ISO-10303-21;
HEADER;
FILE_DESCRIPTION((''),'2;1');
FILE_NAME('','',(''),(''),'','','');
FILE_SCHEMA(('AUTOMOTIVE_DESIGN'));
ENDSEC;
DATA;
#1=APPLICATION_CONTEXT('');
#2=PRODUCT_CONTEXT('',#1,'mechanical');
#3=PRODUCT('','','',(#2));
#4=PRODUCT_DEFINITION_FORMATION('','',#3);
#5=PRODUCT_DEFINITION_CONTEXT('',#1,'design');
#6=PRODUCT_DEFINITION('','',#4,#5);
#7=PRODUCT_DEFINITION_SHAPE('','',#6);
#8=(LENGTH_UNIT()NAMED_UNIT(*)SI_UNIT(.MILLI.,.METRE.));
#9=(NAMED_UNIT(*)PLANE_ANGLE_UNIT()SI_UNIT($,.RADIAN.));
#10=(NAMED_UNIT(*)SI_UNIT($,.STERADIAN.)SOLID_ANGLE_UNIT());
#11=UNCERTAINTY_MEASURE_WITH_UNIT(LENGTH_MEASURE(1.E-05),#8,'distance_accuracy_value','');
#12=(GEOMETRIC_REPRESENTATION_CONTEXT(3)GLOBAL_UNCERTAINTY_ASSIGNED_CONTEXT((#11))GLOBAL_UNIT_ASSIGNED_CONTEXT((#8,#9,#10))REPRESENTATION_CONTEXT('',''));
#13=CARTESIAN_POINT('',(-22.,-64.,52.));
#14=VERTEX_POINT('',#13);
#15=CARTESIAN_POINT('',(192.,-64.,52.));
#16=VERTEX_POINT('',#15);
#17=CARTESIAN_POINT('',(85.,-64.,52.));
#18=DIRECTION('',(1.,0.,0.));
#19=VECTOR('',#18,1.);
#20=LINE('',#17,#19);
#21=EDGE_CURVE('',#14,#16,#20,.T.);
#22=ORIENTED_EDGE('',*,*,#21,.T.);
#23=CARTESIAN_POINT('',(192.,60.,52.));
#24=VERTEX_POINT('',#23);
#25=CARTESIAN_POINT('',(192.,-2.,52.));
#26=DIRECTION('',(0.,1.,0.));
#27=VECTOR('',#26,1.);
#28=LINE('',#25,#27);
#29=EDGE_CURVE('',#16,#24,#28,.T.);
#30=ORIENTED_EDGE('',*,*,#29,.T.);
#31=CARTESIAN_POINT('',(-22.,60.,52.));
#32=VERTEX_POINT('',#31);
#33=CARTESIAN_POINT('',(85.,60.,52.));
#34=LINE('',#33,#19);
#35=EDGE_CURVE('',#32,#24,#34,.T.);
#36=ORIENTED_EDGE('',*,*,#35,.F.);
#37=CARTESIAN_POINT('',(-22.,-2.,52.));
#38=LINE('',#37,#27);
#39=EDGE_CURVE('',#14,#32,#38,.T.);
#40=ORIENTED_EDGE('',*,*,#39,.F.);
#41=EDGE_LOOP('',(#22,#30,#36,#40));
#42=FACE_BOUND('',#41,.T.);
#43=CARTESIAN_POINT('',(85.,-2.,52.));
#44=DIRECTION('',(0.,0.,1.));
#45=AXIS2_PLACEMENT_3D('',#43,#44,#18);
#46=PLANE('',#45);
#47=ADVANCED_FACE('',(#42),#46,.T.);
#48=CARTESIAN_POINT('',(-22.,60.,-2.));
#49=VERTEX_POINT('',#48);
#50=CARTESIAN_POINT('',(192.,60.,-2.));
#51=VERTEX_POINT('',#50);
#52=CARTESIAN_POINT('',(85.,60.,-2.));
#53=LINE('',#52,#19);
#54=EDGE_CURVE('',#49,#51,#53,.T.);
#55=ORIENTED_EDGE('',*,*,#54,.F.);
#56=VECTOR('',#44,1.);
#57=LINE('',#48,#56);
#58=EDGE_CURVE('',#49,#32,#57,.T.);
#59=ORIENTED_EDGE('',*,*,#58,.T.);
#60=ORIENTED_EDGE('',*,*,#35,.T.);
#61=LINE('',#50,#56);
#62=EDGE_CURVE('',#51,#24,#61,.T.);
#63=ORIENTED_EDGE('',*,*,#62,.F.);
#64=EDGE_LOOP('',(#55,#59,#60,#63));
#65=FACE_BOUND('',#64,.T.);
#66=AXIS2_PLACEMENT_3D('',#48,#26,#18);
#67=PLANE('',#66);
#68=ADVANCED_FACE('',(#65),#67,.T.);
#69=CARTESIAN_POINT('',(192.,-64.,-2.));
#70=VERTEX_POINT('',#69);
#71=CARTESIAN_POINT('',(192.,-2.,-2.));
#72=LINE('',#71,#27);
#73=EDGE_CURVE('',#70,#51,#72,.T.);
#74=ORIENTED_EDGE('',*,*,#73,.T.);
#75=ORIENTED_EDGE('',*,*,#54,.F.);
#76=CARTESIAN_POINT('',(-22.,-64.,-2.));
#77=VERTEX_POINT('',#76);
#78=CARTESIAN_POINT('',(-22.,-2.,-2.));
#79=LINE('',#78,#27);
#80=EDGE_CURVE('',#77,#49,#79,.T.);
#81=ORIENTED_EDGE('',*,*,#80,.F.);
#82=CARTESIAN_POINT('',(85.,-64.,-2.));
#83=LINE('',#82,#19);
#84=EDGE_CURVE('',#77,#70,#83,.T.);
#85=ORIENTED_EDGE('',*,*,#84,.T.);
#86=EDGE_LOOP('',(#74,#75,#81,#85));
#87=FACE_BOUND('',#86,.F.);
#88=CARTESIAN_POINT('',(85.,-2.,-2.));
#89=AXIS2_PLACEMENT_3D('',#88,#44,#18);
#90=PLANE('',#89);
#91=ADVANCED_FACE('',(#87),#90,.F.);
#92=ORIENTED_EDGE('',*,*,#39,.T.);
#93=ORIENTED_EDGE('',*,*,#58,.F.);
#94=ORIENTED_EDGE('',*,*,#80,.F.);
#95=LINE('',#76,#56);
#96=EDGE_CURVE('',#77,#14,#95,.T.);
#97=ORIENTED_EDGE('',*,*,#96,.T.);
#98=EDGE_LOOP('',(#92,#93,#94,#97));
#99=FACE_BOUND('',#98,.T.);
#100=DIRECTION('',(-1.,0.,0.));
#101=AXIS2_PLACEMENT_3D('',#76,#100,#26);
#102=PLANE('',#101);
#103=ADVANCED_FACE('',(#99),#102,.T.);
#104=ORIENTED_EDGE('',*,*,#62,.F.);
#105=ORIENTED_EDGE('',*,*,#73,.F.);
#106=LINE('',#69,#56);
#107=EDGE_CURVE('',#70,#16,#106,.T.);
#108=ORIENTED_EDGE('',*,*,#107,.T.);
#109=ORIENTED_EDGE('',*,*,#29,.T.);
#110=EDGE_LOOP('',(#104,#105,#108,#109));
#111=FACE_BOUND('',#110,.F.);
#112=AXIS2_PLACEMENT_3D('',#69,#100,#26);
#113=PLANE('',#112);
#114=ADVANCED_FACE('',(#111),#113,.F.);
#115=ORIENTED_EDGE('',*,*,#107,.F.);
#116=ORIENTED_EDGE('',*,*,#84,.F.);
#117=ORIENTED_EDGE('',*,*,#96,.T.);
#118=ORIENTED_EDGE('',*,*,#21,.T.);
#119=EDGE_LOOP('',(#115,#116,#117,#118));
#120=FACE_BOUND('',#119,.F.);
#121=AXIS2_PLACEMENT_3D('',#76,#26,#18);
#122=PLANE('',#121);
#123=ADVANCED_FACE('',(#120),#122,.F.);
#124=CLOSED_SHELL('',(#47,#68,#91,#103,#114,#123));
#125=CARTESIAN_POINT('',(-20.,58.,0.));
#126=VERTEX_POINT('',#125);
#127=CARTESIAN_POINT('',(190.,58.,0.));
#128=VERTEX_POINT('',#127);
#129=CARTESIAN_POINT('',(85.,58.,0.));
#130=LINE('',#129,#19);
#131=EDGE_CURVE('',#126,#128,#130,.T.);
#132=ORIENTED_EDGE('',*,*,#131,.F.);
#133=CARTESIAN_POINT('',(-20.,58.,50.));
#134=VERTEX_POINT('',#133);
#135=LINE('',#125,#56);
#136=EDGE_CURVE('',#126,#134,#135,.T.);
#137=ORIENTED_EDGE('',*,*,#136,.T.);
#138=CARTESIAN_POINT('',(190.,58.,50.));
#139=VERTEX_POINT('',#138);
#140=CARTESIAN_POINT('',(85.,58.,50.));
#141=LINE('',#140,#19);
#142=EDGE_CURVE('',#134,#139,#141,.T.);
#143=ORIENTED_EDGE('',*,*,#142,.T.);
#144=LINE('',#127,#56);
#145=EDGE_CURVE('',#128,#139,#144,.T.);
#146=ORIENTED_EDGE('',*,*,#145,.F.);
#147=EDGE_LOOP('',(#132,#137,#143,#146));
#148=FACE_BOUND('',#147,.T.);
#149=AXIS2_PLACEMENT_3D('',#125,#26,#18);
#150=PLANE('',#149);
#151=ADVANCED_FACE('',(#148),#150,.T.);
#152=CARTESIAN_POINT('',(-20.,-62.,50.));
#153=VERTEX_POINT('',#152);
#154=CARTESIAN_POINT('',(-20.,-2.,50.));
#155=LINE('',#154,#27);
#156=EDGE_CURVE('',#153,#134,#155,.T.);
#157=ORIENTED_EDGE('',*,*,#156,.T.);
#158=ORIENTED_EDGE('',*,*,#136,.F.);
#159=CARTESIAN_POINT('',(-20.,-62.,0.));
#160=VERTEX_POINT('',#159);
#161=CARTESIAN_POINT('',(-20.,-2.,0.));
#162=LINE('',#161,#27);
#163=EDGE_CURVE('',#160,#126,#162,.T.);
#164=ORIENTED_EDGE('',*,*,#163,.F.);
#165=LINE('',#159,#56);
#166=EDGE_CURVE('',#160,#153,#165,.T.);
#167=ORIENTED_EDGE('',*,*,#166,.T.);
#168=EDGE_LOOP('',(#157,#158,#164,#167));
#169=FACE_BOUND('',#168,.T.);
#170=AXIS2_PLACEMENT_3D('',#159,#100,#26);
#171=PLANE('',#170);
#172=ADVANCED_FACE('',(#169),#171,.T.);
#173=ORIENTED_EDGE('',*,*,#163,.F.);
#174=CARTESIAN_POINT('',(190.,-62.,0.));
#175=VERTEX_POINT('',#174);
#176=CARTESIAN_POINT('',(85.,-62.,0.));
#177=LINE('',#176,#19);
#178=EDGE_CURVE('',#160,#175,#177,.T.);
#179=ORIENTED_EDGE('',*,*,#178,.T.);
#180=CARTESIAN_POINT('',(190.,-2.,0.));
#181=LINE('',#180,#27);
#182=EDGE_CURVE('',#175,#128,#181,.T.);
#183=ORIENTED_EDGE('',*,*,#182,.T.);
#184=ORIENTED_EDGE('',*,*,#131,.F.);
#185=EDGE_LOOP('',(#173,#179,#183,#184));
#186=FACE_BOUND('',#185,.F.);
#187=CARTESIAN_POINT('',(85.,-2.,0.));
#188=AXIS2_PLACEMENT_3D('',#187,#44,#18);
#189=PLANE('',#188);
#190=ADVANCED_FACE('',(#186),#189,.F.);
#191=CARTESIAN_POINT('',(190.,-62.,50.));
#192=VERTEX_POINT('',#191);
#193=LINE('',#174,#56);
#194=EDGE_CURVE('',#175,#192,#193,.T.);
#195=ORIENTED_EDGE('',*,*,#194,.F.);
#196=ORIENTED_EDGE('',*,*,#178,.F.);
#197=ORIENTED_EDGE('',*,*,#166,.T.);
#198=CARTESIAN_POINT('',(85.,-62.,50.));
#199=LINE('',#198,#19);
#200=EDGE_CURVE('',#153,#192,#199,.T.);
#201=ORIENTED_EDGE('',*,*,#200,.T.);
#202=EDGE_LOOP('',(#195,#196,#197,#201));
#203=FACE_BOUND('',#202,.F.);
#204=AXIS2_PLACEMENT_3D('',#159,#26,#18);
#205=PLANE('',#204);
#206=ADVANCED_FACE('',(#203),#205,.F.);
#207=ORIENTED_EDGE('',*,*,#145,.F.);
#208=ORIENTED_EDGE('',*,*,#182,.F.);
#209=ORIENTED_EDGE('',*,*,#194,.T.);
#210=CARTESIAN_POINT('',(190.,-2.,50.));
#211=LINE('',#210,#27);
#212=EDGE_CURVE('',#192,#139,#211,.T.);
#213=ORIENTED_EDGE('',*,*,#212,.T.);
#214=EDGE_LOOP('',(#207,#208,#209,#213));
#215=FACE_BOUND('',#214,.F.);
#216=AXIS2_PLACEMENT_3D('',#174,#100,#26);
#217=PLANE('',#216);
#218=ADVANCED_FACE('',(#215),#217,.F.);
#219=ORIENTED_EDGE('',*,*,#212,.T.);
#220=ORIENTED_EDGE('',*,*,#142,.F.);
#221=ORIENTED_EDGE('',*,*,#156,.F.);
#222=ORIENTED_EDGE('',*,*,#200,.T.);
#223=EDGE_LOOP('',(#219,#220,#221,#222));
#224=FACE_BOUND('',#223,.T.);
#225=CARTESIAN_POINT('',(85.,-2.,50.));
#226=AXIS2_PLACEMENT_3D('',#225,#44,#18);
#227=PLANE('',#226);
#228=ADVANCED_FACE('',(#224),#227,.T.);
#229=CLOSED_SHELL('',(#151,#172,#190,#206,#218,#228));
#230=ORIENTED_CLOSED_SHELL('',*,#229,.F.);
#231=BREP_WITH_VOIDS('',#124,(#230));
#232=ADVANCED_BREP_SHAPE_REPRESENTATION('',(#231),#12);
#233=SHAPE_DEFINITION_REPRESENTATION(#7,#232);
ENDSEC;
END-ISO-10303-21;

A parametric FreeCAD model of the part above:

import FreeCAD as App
import Part
import Sketcher
Q = App.Units.Quantity

doc = App.newDocument("Part")
body = doc.addObject("PartDesign::Body", "Body")

# Sketch on XY plane
sketch1 = body.newObject("Sketcher::SketchObject", "Sketch")
sketch1.AttachmentSupport = (doc.getObject("XY_Plane"), [""])
sketch1.MapMode = "FlatFace"
sketch1.addGeometry(Part.LineSegment(App.Vector(-20, 58, 0), App.Vector(-20, -62, 0)), False)
sketch1.addGeometry(Part.LineSegment(App.Vector(-20, -62, 0), App.Vector(190, -62, 0)), False)
sketch1.addGeometry(Part.LineSegment(App.Vector(190, -62, 0), App.Vector(190, 58, 0)), False)
sketch1.addGeometry(Part.LineSegment(App.Vector(190, 58, 0), App.Vector(-20, 58, 0)), False)
sketch1.addConstraint(Sketcher.Constraint("Coincident", 0, 2, 1, 1))
sketch1.addConstraint(Sketcher.Constraint("Coincident", 1, 2, 2, 1))
sketch1.addConstraint(Sketcher.Constraint("Coincident", 2, 2, 3, 1))
sketch1.addConstraint(Sketcher.Constraint("Coincident", 3, 2, 0, 1))
sketch1.addConstraint(Sketcher.Constraint("Vertical", 0))
sketch1.addConstraint(Sketcher.Constraint("Horizontal", 1))
sketch1.addConstraint(Sketcher.Constraint("Vertical", 2))
sketch1.addConstraint(Sketcher.Constraint("Horizontal", 3))
sketch1.addConstraint(Sketcher.Constraint("DistanceX", 1, 1, 1, 2, Q("210 mm")))
sketch1.addConstraint(Sketcher.Constraint("DistanceY", 0, 2, 0, 1, Q("120 mm")))
sketch1.addConstraint(Sketcher.Constraint("DistanceX", 0, 2, -1, 1, Q("20 mm")))
sketch1.addConstraint(Sketcher.Constraint("DistanceY", 0, 2, -1, 1, Q("62 mm")))
pad1 = body.newObject("PartDesign::Pad", "Pad")
pad1.Profile = sketch1
pad1.Length = 50
body2 = doc.addObject("PartDesign::Body", "Body001")

# Sketch on XY plane
sketch2 = body2.newObject("Sketcher::SketchObject", "Sketch001")
sketch2.AttachmentSupport = (doc.getObject("XY_Plane001"), [""])
sketch2.MapMode = "FlatFace"
sketch2.AttachmentOffset = App.Placement(App.Vector(0, 0, -2), App.Rotation())
sketch2.addGeometry(Part.LineSegment(App.Vector(-22, 60, 0), App.Vector(-22, -64, 0)), False)
sketch2.addGeometry(Part.LineSegment(App.Vector(-22, -64, 0), App.Vector(192, -64, 0)), False)
sketch2.addGeometry(Part.LineSegment(App.Vector(192, -64, 0), App.Vector(192, 60, 0)), False)
sketch2.addGeometry(Part.LineSegment(App.Vector(192, 60, 0), App.Vector(-22, 60, 0)), False)
sketch2.addConstraint(Sketcher.Constraint("Coincident", 0, 2, 1, 1))
sketch2.addConstraint(Sketcher.Constraint("Coincident", 1, 2, 2, 1))
sketch2.addConstraint(Sketcher.Constraint("Coincident", 2, 2, 3, 1))
sketch2.addConstraint(Sketcher.Constraint("Coincident", 3, 2, 0, 1))
sketch2.addConstraint(Sketcher.Constraint("Vertical", 0))
sketch2.addConstraint(Sketcher.Constraint("Horizontal", 1))
sketch2.addConstraint(Sketcher.Constraint("Vertical", 2))
sketch2.addConstraint(Sketcher.Constraint("Horizontal", 3))
sketch2.addConstraint(Sketcher.Constraint("DistanceX", 1, 1, 1, 2, Q("214 mm")))
sketch2.addConstraint(Sketcher.Constraint("DistanceY", 0, 2, 0, 1, Q("124 mm")))
sketch2.addConstraint(Sketcher.Constraint("DistanceX", 0, 2, -1, 1, Q("22 mm")))
sketch2.addConstraint(Sketcher.Constraint("DistanceY", 0, 2, -1, 1, Q("64 mm")))
pad2 = body2.newObject("PartDesign::Pad", "Pad001")
pad2.Profile = sketch2
pad2.Length = 54
doc.recompute()

boolean = body2.newObject("PartDesign::Boolean", "Boolean")
boolean.Type = "Cut"
boolean.addObjects([body])

doc.recompute()
